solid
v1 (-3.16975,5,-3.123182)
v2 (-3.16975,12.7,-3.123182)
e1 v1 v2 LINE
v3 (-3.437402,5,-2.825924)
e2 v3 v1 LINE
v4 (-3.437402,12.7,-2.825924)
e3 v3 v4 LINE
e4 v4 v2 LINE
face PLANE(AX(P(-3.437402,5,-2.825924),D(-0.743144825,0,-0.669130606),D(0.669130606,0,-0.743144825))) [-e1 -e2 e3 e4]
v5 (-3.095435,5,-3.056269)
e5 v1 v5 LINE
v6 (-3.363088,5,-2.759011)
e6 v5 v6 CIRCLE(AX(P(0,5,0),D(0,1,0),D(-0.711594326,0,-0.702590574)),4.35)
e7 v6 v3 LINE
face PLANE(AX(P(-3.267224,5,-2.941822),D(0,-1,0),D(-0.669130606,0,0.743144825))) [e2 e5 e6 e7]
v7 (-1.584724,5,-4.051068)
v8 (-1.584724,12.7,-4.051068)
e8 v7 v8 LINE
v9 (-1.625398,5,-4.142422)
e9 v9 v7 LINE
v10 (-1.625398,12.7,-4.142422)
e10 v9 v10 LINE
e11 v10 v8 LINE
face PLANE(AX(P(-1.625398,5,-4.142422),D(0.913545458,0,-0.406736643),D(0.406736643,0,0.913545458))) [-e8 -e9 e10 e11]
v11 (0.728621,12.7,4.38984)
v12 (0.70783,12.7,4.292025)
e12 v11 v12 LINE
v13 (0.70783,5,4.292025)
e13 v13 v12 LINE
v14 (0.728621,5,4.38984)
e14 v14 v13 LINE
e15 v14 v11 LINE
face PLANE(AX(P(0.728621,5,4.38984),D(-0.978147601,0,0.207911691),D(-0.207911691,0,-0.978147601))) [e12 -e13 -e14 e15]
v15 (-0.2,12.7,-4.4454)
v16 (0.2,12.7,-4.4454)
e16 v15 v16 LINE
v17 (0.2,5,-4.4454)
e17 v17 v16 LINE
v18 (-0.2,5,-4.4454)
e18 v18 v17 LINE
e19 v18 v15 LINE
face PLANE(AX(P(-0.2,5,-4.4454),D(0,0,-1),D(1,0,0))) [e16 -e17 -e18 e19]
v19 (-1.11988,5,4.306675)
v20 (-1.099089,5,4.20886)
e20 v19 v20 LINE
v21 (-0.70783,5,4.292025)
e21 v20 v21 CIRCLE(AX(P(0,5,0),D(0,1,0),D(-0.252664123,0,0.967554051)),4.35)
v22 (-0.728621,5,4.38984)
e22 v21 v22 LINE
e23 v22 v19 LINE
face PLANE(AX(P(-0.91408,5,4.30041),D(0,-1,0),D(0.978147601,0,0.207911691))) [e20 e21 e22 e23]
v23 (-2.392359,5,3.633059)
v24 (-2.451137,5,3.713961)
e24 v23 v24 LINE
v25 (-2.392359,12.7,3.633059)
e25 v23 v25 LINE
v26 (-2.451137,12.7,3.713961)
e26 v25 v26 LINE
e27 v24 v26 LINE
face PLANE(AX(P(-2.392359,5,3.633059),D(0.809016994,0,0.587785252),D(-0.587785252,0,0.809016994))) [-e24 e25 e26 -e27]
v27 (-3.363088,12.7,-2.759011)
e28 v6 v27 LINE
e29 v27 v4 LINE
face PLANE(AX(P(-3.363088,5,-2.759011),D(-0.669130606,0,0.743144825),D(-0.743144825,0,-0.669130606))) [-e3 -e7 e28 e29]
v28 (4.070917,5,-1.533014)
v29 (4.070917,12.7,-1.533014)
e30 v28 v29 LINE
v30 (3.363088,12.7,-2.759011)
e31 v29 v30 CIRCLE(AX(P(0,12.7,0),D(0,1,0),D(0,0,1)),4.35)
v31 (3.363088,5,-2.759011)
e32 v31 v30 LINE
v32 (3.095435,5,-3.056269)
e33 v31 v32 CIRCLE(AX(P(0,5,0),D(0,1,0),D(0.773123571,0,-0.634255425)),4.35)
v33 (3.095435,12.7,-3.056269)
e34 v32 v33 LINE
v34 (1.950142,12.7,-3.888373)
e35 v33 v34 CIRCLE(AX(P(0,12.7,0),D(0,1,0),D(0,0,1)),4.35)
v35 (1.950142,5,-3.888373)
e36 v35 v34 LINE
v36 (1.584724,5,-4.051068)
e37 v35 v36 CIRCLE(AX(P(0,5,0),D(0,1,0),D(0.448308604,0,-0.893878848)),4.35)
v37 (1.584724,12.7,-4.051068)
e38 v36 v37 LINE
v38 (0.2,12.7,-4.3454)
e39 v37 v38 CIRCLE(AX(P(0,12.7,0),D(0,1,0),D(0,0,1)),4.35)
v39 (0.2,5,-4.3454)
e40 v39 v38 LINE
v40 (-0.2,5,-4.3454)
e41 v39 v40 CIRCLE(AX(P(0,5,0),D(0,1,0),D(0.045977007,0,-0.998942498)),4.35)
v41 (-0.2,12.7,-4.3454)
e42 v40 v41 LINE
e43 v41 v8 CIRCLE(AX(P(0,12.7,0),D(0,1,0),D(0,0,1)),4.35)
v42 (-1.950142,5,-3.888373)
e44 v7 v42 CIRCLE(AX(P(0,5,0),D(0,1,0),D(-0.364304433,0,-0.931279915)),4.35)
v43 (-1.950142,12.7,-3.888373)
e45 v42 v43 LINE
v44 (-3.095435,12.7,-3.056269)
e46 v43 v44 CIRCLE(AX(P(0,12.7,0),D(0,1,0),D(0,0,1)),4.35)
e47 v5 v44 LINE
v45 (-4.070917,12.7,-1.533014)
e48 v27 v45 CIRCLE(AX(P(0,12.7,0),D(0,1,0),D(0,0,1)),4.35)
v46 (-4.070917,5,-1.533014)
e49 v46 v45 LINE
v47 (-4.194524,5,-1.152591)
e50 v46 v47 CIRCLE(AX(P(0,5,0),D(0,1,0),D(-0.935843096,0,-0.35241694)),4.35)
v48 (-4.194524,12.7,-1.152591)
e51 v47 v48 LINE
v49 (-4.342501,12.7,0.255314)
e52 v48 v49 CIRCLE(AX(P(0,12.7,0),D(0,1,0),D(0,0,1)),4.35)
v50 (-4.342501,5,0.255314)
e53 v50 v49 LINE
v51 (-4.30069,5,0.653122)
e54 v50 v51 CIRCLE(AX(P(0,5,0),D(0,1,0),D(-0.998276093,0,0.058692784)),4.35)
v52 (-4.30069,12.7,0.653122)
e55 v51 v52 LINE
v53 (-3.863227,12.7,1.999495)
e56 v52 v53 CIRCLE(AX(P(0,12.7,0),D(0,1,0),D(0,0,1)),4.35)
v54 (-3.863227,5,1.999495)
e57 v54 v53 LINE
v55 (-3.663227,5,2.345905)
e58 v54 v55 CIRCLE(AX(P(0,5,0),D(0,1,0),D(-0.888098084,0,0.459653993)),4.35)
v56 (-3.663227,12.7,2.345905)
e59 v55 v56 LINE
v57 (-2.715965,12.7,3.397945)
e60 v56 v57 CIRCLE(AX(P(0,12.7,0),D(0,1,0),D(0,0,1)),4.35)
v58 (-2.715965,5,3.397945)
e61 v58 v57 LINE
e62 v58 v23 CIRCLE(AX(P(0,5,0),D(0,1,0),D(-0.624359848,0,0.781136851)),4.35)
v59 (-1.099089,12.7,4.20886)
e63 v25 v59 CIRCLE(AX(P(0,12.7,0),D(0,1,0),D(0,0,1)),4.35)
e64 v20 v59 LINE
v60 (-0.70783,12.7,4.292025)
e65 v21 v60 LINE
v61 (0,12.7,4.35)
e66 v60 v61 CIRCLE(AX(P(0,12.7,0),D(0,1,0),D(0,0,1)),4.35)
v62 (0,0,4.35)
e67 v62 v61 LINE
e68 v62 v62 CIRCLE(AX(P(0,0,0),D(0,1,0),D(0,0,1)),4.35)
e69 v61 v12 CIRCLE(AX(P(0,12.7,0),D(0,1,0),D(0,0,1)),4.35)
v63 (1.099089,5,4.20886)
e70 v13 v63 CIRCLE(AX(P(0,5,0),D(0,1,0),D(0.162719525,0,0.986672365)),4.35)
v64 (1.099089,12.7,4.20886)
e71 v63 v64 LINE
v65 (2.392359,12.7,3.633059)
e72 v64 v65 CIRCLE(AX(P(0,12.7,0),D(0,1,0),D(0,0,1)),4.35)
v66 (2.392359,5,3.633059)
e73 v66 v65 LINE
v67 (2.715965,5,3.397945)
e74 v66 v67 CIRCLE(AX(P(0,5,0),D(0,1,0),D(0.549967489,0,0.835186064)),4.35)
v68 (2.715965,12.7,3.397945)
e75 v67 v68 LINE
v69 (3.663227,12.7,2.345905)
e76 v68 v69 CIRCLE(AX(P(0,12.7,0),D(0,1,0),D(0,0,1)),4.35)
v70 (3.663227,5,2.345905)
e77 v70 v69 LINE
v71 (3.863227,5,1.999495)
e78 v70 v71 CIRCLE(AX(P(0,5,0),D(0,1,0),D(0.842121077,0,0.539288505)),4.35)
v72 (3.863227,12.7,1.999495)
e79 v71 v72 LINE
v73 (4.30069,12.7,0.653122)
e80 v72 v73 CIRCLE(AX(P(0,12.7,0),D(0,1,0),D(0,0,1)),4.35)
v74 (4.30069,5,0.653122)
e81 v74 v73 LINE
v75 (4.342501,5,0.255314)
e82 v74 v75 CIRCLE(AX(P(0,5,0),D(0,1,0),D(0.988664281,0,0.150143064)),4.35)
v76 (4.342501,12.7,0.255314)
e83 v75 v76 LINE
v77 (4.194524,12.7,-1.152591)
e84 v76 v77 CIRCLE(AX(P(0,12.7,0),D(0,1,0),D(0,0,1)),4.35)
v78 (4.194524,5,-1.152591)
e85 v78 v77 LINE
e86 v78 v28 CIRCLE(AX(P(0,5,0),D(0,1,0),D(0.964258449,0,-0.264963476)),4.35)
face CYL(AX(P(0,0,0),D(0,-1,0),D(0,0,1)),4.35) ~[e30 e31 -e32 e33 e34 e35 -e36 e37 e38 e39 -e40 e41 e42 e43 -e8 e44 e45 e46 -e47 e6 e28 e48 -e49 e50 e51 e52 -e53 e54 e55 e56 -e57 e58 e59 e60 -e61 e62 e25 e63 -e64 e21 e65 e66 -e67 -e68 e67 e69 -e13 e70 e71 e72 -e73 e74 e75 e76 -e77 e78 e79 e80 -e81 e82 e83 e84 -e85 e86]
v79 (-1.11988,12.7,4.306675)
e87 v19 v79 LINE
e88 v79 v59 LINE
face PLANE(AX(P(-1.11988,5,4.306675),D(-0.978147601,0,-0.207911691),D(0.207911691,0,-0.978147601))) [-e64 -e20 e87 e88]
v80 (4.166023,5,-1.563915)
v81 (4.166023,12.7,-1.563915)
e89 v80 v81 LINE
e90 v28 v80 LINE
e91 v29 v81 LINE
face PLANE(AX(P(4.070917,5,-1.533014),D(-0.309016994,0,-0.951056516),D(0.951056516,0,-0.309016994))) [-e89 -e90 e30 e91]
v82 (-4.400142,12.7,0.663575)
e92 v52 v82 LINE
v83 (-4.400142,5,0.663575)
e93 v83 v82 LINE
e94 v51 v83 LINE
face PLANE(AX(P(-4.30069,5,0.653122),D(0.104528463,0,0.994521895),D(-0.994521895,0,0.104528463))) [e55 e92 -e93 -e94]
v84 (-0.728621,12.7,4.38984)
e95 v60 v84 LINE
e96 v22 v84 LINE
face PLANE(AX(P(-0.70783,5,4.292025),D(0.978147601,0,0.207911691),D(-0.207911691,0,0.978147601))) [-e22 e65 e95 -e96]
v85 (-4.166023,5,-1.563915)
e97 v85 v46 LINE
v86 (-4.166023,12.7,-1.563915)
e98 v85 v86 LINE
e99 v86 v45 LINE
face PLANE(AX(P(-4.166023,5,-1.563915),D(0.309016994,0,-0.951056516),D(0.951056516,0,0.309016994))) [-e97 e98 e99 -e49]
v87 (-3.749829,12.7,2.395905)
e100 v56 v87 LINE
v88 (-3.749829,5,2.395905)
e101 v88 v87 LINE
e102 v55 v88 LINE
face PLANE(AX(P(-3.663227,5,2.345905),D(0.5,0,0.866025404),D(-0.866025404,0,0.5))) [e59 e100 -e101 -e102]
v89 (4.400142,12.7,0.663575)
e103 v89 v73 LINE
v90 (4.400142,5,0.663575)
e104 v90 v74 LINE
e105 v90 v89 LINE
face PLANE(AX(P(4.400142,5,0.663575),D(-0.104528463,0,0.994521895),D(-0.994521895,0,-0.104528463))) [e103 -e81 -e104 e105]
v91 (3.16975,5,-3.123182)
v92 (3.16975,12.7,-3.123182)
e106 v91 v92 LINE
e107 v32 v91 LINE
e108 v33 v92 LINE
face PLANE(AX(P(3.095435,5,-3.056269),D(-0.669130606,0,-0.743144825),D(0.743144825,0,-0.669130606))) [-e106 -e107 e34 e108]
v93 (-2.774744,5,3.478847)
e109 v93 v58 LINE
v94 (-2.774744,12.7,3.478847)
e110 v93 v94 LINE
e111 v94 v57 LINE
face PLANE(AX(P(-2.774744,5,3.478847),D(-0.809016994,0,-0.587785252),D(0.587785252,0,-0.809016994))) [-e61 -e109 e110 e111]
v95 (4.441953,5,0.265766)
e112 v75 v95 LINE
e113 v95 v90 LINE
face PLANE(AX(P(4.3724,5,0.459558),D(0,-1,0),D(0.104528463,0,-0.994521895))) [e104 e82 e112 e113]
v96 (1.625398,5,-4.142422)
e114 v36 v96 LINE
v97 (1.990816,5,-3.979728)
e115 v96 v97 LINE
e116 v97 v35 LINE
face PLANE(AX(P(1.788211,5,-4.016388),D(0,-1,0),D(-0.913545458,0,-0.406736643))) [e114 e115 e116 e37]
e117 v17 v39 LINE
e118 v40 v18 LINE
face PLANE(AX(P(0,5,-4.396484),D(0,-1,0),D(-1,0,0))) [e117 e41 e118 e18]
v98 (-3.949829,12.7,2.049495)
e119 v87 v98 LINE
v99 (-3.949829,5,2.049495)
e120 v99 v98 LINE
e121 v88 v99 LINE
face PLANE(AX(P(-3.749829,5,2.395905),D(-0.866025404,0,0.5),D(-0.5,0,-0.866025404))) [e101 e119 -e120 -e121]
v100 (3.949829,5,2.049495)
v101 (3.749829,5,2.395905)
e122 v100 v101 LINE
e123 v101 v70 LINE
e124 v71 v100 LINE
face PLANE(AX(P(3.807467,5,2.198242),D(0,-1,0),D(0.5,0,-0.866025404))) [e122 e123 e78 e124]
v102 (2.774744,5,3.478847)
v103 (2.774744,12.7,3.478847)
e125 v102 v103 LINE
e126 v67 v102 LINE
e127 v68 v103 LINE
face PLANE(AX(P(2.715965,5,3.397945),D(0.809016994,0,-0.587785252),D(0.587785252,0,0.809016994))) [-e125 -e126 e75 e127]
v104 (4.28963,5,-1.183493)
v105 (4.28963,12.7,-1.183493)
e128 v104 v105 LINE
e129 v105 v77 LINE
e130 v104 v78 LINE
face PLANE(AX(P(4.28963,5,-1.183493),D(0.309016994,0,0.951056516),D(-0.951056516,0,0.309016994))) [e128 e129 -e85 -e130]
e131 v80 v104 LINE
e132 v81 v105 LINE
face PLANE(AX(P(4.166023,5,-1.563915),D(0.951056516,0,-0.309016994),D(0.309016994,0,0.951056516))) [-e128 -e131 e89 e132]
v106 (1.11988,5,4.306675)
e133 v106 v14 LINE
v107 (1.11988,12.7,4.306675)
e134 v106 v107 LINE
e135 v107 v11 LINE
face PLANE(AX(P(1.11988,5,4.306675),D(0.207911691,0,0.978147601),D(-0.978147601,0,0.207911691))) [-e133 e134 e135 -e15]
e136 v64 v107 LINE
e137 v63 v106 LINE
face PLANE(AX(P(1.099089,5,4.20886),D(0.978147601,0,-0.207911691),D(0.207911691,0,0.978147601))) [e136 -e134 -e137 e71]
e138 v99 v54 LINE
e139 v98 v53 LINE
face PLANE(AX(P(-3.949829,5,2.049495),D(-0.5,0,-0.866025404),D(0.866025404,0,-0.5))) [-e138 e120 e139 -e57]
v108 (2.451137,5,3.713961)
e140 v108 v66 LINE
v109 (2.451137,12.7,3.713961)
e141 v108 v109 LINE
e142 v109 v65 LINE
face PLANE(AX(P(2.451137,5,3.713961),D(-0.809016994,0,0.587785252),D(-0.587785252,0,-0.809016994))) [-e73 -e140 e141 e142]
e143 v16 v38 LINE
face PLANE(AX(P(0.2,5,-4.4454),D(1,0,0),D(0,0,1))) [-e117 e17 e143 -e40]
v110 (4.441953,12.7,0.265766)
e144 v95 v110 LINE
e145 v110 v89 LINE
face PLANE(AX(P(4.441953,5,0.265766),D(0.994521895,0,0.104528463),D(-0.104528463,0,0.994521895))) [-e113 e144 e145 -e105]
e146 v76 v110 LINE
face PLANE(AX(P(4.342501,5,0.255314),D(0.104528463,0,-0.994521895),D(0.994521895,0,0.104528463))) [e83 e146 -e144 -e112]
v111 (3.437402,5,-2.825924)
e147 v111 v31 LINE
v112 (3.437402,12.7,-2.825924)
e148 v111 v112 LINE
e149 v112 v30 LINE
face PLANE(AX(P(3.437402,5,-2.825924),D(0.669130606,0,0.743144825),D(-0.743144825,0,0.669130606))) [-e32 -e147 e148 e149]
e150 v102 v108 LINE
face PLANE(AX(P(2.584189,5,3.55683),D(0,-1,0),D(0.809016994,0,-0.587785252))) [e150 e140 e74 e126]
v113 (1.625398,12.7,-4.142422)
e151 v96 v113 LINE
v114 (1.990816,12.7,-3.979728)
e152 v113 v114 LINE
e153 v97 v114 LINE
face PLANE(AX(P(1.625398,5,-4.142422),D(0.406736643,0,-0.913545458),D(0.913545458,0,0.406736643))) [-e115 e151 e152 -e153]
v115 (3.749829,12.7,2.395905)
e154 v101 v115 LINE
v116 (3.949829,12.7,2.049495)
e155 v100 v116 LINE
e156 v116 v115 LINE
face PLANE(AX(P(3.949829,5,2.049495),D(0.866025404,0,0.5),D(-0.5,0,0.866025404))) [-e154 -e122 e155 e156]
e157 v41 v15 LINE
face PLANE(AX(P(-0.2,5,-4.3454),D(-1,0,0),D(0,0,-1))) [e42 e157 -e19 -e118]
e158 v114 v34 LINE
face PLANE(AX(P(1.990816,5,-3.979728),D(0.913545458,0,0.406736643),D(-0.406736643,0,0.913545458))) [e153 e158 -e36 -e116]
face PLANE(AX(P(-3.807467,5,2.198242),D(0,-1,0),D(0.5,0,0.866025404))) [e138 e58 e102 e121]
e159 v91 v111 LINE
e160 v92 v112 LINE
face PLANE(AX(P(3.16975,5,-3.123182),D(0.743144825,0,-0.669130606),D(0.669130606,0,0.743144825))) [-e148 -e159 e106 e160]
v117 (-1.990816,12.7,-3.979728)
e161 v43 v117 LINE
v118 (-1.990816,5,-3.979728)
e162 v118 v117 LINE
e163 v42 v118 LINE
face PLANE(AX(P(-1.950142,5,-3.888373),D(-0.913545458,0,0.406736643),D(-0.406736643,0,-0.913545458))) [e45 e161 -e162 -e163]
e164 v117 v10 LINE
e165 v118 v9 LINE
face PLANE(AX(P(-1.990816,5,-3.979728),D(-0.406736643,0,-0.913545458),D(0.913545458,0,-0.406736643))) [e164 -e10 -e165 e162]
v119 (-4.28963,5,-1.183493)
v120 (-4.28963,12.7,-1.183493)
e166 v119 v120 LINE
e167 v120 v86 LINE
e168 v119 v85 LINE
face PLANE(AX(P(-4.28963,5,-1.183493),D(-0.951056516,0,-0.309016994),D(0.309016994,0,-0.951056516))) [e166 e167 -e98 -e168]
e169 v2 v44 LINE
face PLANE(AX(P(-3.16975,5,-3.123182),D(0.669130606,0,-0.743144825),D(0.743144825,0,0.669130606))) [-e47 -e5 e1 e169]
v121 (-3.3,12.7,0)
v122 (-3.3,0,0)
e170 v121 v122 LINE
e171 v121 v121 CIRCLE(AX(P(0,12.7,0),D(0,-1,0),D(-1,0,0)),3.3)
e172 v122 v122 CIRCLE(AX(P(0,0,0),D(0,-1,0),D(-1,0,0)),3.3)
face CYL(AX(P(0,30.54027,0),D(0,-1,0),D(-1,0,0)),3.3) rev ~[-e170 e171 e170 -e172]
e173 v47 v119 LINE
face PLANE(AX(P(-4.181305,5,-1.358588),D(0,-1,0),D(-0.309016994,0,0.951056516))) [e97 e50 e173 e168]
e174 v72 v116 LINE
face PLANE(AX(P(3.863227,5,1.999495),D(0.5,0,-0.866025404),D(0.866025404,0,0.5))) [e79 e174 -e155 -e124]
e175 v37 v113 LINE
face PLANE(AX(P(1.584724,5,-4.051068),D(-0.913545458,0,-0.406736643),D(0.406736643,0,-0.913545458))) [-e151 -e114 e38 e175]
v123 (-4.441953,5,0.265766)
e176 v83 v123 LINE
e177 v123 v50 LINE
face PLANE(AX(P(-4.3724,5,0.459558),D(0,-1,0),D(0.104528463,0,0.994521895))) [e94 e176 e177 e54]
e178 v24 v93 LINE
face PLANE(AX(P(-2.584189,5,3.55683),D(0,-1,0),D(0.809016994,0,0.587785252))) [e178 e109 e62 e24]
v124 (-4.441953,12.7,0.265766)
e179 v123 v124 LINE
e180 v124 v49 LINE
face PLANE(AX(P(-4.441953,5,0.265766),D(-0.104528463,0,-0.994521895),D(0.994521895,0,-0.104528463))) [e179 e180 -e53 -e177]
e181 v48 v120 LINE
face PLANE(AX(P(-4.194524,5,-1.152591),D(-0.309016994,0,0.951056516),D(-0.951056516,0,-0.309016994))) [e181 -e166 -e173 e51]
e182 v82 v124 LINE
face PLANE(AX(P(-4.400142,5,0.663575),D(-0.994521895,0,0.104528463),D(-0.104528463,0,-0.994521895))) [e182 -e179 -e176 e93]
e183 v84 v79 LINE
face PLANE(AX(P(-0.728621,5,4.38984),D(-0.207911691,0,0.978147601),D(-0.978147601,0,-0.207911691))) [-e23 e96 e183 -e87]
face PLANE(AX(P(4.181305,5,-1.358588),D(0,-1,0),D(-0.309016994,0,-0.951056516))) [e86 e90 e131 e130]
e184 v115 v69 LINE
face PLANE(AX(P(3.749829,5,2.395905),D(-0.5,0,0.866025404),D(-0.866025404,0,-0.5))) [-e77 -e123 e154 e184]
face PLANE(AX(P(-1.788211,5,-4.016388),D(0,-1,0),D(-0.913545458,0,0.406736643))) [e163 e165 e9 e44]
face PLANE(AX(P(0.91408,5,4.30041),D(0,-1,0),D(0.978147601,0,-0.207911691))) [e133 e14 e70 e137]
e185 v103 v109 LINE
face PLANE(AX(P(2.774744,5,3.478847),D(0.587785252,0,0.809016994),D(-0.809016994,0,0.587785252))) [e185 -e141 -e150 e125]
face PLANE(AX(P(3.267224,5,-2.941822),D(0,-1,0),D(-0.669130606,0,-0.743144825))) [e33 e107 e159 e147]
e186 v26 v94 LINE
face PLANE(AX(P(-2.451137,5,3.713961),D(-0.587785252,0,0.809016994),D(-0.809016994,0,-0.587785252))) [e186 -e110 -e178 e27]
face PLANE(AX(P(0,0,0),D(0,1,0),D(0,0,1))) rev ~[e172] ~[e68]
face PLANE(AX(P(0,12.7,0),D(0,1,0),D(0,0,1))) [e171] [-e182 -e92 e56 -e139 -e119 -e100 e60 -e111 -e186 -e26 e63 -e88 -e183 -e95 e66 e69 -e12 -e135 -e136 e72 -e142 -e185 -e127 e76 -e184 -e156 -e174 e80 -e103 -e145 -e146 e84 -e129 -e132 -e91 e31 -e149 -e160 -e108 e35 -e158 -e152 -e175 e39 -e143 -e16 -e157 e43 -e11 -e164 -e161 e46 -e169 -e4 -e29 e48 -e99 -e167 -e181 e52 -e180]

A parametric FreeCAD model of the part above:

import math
import FreeCAD as App
import Part
import Sketcher

V = App.Vector

doc = App.newDocument("Part")
body = doc.addObject("PartDesign::Body", "Body")

# Sketch on XZ plane
sketch1 = body.newObject("Sketcher::SketchObject", "Sketch")
sketch1.AttachmentSupport = (doc.getObject("XZ_Plane"), [""])
sketch1.MapMode = "FlatFace"
sketch1.addGeometry(Part.Circle(V(0, 0, 0), V(0, 0, 1), 4.35), False)
sketch1.addConstraint([
    Sketcher.Constraint("Coincident", 0, 3, -1, 1),
    Sketcher.Constraint("Diameter", 0, 8.7),
])
pad1 = body.newObject("PartDesign::Pad", "Pad")
pad1.Profile = sketch1
pad1.Length = 12.7
pad1.Reversed = True

# Sketch on XZ plane
sketch2 = body.newObject("Sketcher::SketchObject", "Sketch001")
sketch2.AttachmentSupport = (doc.getObject("XZ_Plane"), [""])
sketch2.MapMode = "FlatFace"
sketch2.AttachmentOffset = App.Placement(V(0, 0, -5), App.Rotation())
sketch2.addGeometry([
    Part.LineSegment(V(-0.2, -4.4454, 0), V(-0.2, -4.3454, 0)),
    Part.ArcOfCircle(Part.Circle(V(0, 0, 0), V(0, 0, 1), 4.35), math.radians(-92.635217), math.radians(-87.364783)),
    Part.LineSegment(V(0.2, -4.3454, 0), V(0.2, -4.4454, 0)),
    Part.LineSegment(V(0.2, -4.4454, 0), V(-0.2, -4.4454, 0)),
], False)
sketch2.addConstraint([
    Sketcher.Constraint("Coincident", 0, 2, 1, 1),
    Sketcher.Constraint("Coincident", 1, 2, 2, 1),
    Sketcher.Constraint("Coincident", 2, 2, 3, 1),
    Sketcher.Constraint("Coincident", 3, 2, 0, 1),
    Sketcher.Constraint("Vertical", 0),
    Sketcher.Constraint("Vertical", 2),
    Sketcher.Constraint("Horizontal", 3),
    Sketcher.Constraint("Coincident", 1, 3, -1, 1),
    Sketcher.Constraint("Horizontal", 0, 2, 1, 2),
    Sketcher.Constraint("Radius", 1, 4.35),
    Sketcher.Constraint("DistanceX", 3, 2, 3, 1, 0.4),
    Sketcher.Constraint("DistanceY", 0, 1, 0, 2, 0.1),
])
pad2 = body.newObject("PartDesign::Pad", "Pad001")
pad2.Profile = sketch2
pad2.Length = 7.7
pad2.Reversed = True
doc.recompute()

polarpattern = body.newObject("PartDesign::PolarPattern", "PolarPattern")
polarpattern.Originals = [pad2]
polarpattern.Axis = (doc.getObject("Y_Axis"), [""])
polarpattern.Angle = 360
polarpattern.Occurrences = 15
body.Tip = polarpattern

# Sketch on XZ plane
sketch3 = body.newObject("Sketcher::SketchObject", "Sketch002")
sketch3.AttachmentSupport = (doc.getObject("XZ_Plane"), [""])
sketch3.MapMode = "FlatFace"
sketch3.AttachmentOffset = App.Placement(V(0, 0, -12.7), App.Rotation())
sketch3.addGeometry(Part.Circle(V(0, 0, 0), V(0, 0, 1), 3.3), False)
sketch3.addConstraint([
    Sketcher.Constraint("Coincident", 0, 3, -1, 1),
    Sketcher.Constraint("Diameter", 0, 6.6),
])
doc.recompute()
hole = body.newObject("PartDesign::Hole", "Hole")
hole.Profile = sketch3
hole.ThreadType = "None"
hole.Diameter = 6.6
hole.DepthType = "ThroughAll"
hole.Reversed = True

doc.recompute()
